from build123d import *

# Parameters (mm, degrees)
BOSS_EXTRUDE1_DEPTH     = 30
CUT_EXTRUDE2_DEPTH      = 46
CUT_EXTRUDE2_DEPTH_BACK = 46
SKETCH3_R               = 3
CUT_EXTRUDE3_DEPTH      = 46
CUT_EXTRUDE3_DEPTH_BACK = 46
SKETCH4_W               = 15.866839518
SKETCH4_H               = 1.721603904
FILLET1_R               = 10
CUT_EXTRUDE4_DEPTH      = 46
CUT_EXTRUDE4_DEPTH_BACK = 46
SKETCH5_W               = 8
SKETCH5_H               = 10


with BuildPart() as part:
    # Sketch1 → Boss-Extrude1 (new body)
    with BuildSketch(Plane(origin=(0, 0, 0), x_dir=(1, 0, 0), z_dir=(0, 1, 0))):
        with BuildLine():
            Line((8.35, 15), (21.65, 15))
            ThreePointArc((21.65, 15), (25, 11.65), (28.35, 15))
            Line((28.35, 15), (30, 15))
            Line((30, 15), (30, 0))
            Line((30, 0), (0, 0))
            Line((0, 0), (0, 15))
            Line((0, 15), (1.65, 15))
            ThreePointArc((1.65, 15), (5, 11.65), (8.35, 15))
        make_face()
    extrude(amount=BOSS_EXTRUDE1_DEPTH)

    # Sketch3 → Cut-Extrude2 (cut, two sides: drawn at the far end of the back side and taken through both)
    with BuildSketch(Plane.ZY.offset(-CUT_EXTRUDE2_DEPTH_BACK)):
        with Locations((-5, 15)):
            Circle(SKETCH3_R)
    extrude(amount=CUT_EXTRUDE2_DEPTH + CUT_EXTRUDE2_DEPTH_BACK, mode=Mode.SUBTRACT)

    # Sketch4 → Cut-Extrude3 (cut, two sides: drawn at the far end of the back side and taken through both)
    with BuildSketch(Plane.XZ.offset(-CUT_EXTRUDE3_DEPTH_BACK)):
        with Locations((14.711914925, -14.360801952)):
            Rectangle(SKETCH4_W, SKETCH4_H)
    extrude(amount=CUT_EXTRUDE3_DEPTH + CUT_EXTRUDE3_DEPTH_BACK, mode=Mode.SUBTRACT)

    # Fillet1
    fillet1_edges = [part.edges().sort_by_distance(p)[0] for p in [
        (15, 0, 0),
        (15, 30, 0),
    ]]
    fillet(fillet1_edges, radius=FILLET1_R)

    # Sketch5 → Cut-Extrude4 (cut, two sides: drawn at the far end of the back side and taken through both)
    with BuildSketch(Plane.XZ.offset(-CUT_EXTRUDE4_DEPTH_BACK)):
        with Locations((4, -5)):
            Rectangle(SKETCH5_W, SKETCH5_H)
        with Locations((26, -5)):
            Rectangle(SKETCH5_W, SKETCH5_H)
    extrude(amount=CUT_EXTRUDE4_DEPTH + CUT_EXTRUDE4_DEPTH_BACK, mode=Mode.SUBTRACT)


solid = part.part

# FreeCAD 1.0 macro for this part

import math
import FreeCAD as App
import Part
import Sketcher
Q = App.Units.Quantity


def edges_at(feature, points):
    """Names of the edges that pass closest to the given points."""
    edges = feature.Shape.Edges
    near = lambda p: min(range(len(edges)), key=lambda i: edges[i].distToShape(Part.Vertex(*p))[0])
    return sorted({f"Edge{near(p) + 1}" for p in points})


def add_polygon(sketch, points):
    """Adds a closed chain of lines whose ends are joined by coincident constraints."""
    first, n = sketch.GeometryCount, len(points)
    for a, b in zip(points, points[1:] + points[:1]):
        sketch.addGeometry(Part.LineSegment(App.Vector(*a, 0), App.Vector(*b, 0)), False)
    for i in range(n):
        sketch.addConstraint(Sketcher.Constraint("Coincident", first + i, 2, first + (i + 1) % n, 1))

doc = App.newDocument("Part")
params = doc.addObject("Spreadsheet::Sheet", "Params")
for row, (alias, value) in enumerate([
    ("sketch1_width", "30 mm"),
    ("sketch1_height", "15 mm"),
    ("sketch1_radius", "3.35 mm"),
    ("sketch1_width2", "13.3 mm"),
    ("pad1_length", "30 mm"),
    ("sketch2_diameter", "6 mm"),
    ("fillet_radius", "10 mm"),
    ("sketch4_width", "8 mm"),
    ("sketch4_height", "10 mm"),
], start=1):
    params.set(f"A{row}", alias)
    params.set(f"B{row}", "=" + value)
    params.setAlias(f"B{row}", alias)

body = doc.addObject("PartDesign::Body", "Body")

# Sketch on XZ plane
sketch1 = doc.addObject("Sketcher::SketchObject", "Sketch")
body.addObject(sketch1)
sketch1.AttachmentSupport = (doc.XZ_Plane, [""])
sketch1.MapMode = "FlatFace"
sketch1.addGeometry(Part.LineSegment(App.Vector(21.65, -15, 0), App.Vector(8.35, -15, 0)), False)
sketch1.addGeometry(Part.ArcOfCircle(Part.Circle(App.Vector(5, -15, 0), App.Vector(0, 0, 1), 3.35), math.radians(0), math.radians(180)), False)
sketch1.addGeometry(Part.LineSegment(App.Vector(1.65, -15, 0), App.Vector(0, -15, 0)), False)
sketch1.addGeometry(Part.LineSegment(App.Vector(0, -15, 0), App.Vector(0, 0, 0)), False)
sketch1.addGeometry(Part.LineSegment(App.Vector(0, 0, 0), App.Vector(30, 0, 0)), False)
sketch1.addGeometry(Part.LineSegment(App.Vector(30, 0, 0), App.Vector(30, -15, 0)), False)
sketch1.addGeometry(Part.LineSegment(App.Vector(30, -15, 0), App.Vector(28.35, -15, 0)), False)
sketch1.addGeometry(Part.ArcOfCircle(Part.Circle(App.Vector(25, -15, 0), App.Vector(0, 0, 1), 3.35), math.radians(0), math.radians(180)), False)
sketch1.addConstraint(Sketcher.Constraint("Coincident", 0, 2, 1, 1))
sketch1.addConstraint(Sketcher.Constraint("Coincident", 1, 2, 2, 1))
sketch1.addConstraint(Sketcher.Constraint("Coincident", 2, 2, 3, 1))
sketch1.addConstraint(Sketcher.Constraint("Coincident", 3, 2, 4, 1))
sketch1.addConstraint(Sketcher.Constraint("Coincident", 4, 2, 5, 1))
sketch1.addConstraint(Sketcher.Constraint("Coincident", 5, 2, 6, 1))
sketch1.addConstraint(Sketcher.Constraint("Coincident", 6, 2, 7, 1))
sketch1.addConstraint(Sketcher.Constraint("Coincident", 7, 2, 0, 1))
sketch1.addConstraint(Sketcher.Constraint("Horizontal", 0))
sketch1.addConstraint(Sketcher.Constraint("Horizontal", 2))
sketch1.addConstraint(Sketcher.Constraint("Vertical", 3))
sketch1.addConstraint(Sketcher.Constraint("Horizontal", 4))
sketch1.addConstraint(Sketcher.Constraint("Vertical", 5))
sketch1.addConstraint(Sketcher.Constraint("Horizontal", 6))
sketch1.addConstraint(Sketcher.Constraint("Coincident", 3, 2, -1, 1))
sketch1.addConstraint(Sketcher.Constraint("Equal", 1, 7))
sketch1.addConstraint(Sketcher.Constraint("Horizontal", 1, 3, 7, 3))
sketch1.addConstraint(Sketcher.Constraint("Horizontal", 7, 3, 0, 2))
sketch1.addConstraint(Sketcher.Constraint("Horizontal", 0, 2, 1, 2))
sketch1.addConstraint(Sketcher.Constraint("Horizontal", 2, 2, 5, 2))
sketch1.addConstraint(Sketcher.Constraint("Equal", 2, 6))
sketch1.addConstraint(Sketcher.Constraint("DistanceX", 4, 1, 4, 2, Q("30 mm")))
sketch1.addConstraint(Sketcher.Constraint("DistanceY", 3, 1, 3, 2, Q("15 mm")))
sketch1.addConstraint(Sketcher.Constraint("Radius", 1, Q("3.35 mm")))
sketch1.addConstraint(Sketcher.Constraint("DistanceX", 0, 2, 0, 1, Q("13.3 mm")))
sketch1.setExpression("Constraints[21]", "Params.sketch1_width")
sketch1.setExpression("Constraints[22]", "Params.sketch1_height")
sketch1.setExpression("Constraints[23]", "Params.sketch1_radius")
sketch1.setExpression("Constraints[24]", "Params.sketch1_width2")
pad1 = doc.addObject("PartDesign::Pad", "Pad")
body.addObject(pad1)
pad1.Profile = sketch1
pad1.setExpression("Length", "Params.pad1_length")
pad1.Reversed = True

# Sketch on YZ plane
sketch2 = doc.addObject("Sketcher::SketchObject", "Sketch001")
body.addObject(sketch2)
sketch2.AttachmentSupport = (doc.YZ_Plane, [""])
sketch2.MapMode = "FlatFace"
sketch2.addGeometry(Part.Circle(App.Vector(15, -5, 0), App.Vector(0, 0, 1), 3), False)
sketch2.addConstraint(Sketcher.Constraint("Diameter", 0, Q("6 mm")))
sketch2.addConstraint(Sketcher.Constraint("DistanceX", -1, 1, 0, 3, Q("15 mm")))
sketch2.addConstraint(Sketcher.Constraint("DistanceY", 0, 3, -1, 1, Q("5 mm")))
sketch2.setExpression("Constraints[0]", "Params.sketch2_diameter")
pocket1 = doc.addObject("PartDesign::Pocket", "Pocket")
body.addObject(pocket1)
pocket1.Profile = sketch2
pocket1.Type = "ThroughAll"
pocket1.Midplane = True

# Sketch on XZ plane
sketch3 = doc.addObject("Sketcher::SketchObject", "Sketch002")
body.addObject(sketch3)
sketch3.AttachmentSupport = (doc.XZ_Plane, [""])
sketch3.MapMode = "FlatFace"
add_polygon(sketch3, [(6.778495, -13.5), (6.778495, -15.221604), (22.645335, -15.221604), (22.645335, -13.5)])  # lines 0-3
sketch3.addConstraint(Sketcher.Constraint("Vertical", 0))
sketch3.addConstraint(Sketcher.Constraint("Horizontal", 1))
sketch3.addConstraint(Sketcher.Constraint("Vertical", 2))
sketch3.addConstraint(Sketcher.Constraint("Horizontal", 3))
sketch3.addConstraint(Sketcher.Constraint("DistanceY", 2, 2, -1, 1, Q("13.5 mm")))
sketch3.addConstraint(Sketcher.Constraint("DistanceX", 1, 1, 1, 2, Q("15.86684 mm")))
sketch3.addConstraint(Sketcher.Constraint("DistanceY", 0, 2, 0, 1, Q("1.721604 mm")))
sketch3.addConstraint(Sketcher.Constraint("DistanceX", -1, 1, 0, 2, Q("6.778495 mm")))
pocket2 = doc.addObject("PartDesign::Pocket", "Pocket001")
body.addObject(pocket2)
pocket2.Profile = sketch3
pocket2.Type = "ThroughAll"
pocket2.Midplane = True
doc.recompute()

fillet = doc.addObject("PartDesign::Fillet", "Fillet")
body.addObject(fillet)
fillet.Base = (pocket2, edges_at(pocket2, [(15, 0, 0), (15, 30, 0)]))
fillet.setExpression("Radius", "Params.fillet_radius")

# Sketch on XZ plane
sketch4 = doc.addObject("Sketcher::SketchObject", "Sketch003")
body.addObject(sketch4)
sketch4.AttachmentSupport = (doc.XZ_Plane, [""])
sketch4.MapMode = "FlatFace"
add_polygon(sketch4, [(0, 0), (0, -10), (8, -10), (8, 0)])  # lines 0-3
add_polygon(sketch4, [(22, 0), (22, -10), (30, -10), (30, 0)])  # lines 4-7
sketch4.addConstraint(Sketcher.Constraint("Vertical", 0))
sketch4.addConstraint(Sketcher.Constraint("Horizontal", 1))
sketch4.addConstraint(Sketcher.Constraint("Vertical", 2))
sketch4.addConstraint(Sketcher.Constraint("Horizontal", 3))
sketch4.addConstraint(Sketcher.Constraint("Vertical", 4))
sketch4.addConstraint(Sketcher.Constraint("Horizontal", 5))
sketch4.addConstraint(Sketcher.Constraint("Vertical", 6))
sketch4.addConstraint(Sketcher.Constraint("Horizontal", 7))
sketch4.addConstraint(Sketcher.Constraint("Coincident", 3, 2, -1, 1))
sketch4.addConstraint(Sketcher.Constraint("PointOnObject", 6, 2, -1))
sketch4.addConstraint(Sketcher.Constraint("Horizontal", 1, 2, 4, 2))
sketch4.addConstraint(Sketcher.Constraint("Equal", 3, 5))
sketch4.addConstraint(Sketcher.Constraint("DistanceX", 1, 1, 1, 2, Q("8 mm")))
sketch4.addConstraint(Sketcher.Constraint("DistanceY", 0, 2, 0, 1, Q("10 mm")))
sketch4.addConstraint(Sketcher.Constraint("DistanceX", -1, 1, 4, 2, Q("22 mm")))
sketch4.setExpression("Constraints[20]", "Params.sketch4_width")
sketch4.setExpression("Constraints[21]", "Params.sketch4_height")
pocket3 = doc.addObject("PartDesign::Pocket", "Pocket002")
body.addObject(pocket3)
pocket3.Profile = sketch4
pocket3.Type = "ThroughAll"
pocket3.Midplane = True

doc.recompute()
